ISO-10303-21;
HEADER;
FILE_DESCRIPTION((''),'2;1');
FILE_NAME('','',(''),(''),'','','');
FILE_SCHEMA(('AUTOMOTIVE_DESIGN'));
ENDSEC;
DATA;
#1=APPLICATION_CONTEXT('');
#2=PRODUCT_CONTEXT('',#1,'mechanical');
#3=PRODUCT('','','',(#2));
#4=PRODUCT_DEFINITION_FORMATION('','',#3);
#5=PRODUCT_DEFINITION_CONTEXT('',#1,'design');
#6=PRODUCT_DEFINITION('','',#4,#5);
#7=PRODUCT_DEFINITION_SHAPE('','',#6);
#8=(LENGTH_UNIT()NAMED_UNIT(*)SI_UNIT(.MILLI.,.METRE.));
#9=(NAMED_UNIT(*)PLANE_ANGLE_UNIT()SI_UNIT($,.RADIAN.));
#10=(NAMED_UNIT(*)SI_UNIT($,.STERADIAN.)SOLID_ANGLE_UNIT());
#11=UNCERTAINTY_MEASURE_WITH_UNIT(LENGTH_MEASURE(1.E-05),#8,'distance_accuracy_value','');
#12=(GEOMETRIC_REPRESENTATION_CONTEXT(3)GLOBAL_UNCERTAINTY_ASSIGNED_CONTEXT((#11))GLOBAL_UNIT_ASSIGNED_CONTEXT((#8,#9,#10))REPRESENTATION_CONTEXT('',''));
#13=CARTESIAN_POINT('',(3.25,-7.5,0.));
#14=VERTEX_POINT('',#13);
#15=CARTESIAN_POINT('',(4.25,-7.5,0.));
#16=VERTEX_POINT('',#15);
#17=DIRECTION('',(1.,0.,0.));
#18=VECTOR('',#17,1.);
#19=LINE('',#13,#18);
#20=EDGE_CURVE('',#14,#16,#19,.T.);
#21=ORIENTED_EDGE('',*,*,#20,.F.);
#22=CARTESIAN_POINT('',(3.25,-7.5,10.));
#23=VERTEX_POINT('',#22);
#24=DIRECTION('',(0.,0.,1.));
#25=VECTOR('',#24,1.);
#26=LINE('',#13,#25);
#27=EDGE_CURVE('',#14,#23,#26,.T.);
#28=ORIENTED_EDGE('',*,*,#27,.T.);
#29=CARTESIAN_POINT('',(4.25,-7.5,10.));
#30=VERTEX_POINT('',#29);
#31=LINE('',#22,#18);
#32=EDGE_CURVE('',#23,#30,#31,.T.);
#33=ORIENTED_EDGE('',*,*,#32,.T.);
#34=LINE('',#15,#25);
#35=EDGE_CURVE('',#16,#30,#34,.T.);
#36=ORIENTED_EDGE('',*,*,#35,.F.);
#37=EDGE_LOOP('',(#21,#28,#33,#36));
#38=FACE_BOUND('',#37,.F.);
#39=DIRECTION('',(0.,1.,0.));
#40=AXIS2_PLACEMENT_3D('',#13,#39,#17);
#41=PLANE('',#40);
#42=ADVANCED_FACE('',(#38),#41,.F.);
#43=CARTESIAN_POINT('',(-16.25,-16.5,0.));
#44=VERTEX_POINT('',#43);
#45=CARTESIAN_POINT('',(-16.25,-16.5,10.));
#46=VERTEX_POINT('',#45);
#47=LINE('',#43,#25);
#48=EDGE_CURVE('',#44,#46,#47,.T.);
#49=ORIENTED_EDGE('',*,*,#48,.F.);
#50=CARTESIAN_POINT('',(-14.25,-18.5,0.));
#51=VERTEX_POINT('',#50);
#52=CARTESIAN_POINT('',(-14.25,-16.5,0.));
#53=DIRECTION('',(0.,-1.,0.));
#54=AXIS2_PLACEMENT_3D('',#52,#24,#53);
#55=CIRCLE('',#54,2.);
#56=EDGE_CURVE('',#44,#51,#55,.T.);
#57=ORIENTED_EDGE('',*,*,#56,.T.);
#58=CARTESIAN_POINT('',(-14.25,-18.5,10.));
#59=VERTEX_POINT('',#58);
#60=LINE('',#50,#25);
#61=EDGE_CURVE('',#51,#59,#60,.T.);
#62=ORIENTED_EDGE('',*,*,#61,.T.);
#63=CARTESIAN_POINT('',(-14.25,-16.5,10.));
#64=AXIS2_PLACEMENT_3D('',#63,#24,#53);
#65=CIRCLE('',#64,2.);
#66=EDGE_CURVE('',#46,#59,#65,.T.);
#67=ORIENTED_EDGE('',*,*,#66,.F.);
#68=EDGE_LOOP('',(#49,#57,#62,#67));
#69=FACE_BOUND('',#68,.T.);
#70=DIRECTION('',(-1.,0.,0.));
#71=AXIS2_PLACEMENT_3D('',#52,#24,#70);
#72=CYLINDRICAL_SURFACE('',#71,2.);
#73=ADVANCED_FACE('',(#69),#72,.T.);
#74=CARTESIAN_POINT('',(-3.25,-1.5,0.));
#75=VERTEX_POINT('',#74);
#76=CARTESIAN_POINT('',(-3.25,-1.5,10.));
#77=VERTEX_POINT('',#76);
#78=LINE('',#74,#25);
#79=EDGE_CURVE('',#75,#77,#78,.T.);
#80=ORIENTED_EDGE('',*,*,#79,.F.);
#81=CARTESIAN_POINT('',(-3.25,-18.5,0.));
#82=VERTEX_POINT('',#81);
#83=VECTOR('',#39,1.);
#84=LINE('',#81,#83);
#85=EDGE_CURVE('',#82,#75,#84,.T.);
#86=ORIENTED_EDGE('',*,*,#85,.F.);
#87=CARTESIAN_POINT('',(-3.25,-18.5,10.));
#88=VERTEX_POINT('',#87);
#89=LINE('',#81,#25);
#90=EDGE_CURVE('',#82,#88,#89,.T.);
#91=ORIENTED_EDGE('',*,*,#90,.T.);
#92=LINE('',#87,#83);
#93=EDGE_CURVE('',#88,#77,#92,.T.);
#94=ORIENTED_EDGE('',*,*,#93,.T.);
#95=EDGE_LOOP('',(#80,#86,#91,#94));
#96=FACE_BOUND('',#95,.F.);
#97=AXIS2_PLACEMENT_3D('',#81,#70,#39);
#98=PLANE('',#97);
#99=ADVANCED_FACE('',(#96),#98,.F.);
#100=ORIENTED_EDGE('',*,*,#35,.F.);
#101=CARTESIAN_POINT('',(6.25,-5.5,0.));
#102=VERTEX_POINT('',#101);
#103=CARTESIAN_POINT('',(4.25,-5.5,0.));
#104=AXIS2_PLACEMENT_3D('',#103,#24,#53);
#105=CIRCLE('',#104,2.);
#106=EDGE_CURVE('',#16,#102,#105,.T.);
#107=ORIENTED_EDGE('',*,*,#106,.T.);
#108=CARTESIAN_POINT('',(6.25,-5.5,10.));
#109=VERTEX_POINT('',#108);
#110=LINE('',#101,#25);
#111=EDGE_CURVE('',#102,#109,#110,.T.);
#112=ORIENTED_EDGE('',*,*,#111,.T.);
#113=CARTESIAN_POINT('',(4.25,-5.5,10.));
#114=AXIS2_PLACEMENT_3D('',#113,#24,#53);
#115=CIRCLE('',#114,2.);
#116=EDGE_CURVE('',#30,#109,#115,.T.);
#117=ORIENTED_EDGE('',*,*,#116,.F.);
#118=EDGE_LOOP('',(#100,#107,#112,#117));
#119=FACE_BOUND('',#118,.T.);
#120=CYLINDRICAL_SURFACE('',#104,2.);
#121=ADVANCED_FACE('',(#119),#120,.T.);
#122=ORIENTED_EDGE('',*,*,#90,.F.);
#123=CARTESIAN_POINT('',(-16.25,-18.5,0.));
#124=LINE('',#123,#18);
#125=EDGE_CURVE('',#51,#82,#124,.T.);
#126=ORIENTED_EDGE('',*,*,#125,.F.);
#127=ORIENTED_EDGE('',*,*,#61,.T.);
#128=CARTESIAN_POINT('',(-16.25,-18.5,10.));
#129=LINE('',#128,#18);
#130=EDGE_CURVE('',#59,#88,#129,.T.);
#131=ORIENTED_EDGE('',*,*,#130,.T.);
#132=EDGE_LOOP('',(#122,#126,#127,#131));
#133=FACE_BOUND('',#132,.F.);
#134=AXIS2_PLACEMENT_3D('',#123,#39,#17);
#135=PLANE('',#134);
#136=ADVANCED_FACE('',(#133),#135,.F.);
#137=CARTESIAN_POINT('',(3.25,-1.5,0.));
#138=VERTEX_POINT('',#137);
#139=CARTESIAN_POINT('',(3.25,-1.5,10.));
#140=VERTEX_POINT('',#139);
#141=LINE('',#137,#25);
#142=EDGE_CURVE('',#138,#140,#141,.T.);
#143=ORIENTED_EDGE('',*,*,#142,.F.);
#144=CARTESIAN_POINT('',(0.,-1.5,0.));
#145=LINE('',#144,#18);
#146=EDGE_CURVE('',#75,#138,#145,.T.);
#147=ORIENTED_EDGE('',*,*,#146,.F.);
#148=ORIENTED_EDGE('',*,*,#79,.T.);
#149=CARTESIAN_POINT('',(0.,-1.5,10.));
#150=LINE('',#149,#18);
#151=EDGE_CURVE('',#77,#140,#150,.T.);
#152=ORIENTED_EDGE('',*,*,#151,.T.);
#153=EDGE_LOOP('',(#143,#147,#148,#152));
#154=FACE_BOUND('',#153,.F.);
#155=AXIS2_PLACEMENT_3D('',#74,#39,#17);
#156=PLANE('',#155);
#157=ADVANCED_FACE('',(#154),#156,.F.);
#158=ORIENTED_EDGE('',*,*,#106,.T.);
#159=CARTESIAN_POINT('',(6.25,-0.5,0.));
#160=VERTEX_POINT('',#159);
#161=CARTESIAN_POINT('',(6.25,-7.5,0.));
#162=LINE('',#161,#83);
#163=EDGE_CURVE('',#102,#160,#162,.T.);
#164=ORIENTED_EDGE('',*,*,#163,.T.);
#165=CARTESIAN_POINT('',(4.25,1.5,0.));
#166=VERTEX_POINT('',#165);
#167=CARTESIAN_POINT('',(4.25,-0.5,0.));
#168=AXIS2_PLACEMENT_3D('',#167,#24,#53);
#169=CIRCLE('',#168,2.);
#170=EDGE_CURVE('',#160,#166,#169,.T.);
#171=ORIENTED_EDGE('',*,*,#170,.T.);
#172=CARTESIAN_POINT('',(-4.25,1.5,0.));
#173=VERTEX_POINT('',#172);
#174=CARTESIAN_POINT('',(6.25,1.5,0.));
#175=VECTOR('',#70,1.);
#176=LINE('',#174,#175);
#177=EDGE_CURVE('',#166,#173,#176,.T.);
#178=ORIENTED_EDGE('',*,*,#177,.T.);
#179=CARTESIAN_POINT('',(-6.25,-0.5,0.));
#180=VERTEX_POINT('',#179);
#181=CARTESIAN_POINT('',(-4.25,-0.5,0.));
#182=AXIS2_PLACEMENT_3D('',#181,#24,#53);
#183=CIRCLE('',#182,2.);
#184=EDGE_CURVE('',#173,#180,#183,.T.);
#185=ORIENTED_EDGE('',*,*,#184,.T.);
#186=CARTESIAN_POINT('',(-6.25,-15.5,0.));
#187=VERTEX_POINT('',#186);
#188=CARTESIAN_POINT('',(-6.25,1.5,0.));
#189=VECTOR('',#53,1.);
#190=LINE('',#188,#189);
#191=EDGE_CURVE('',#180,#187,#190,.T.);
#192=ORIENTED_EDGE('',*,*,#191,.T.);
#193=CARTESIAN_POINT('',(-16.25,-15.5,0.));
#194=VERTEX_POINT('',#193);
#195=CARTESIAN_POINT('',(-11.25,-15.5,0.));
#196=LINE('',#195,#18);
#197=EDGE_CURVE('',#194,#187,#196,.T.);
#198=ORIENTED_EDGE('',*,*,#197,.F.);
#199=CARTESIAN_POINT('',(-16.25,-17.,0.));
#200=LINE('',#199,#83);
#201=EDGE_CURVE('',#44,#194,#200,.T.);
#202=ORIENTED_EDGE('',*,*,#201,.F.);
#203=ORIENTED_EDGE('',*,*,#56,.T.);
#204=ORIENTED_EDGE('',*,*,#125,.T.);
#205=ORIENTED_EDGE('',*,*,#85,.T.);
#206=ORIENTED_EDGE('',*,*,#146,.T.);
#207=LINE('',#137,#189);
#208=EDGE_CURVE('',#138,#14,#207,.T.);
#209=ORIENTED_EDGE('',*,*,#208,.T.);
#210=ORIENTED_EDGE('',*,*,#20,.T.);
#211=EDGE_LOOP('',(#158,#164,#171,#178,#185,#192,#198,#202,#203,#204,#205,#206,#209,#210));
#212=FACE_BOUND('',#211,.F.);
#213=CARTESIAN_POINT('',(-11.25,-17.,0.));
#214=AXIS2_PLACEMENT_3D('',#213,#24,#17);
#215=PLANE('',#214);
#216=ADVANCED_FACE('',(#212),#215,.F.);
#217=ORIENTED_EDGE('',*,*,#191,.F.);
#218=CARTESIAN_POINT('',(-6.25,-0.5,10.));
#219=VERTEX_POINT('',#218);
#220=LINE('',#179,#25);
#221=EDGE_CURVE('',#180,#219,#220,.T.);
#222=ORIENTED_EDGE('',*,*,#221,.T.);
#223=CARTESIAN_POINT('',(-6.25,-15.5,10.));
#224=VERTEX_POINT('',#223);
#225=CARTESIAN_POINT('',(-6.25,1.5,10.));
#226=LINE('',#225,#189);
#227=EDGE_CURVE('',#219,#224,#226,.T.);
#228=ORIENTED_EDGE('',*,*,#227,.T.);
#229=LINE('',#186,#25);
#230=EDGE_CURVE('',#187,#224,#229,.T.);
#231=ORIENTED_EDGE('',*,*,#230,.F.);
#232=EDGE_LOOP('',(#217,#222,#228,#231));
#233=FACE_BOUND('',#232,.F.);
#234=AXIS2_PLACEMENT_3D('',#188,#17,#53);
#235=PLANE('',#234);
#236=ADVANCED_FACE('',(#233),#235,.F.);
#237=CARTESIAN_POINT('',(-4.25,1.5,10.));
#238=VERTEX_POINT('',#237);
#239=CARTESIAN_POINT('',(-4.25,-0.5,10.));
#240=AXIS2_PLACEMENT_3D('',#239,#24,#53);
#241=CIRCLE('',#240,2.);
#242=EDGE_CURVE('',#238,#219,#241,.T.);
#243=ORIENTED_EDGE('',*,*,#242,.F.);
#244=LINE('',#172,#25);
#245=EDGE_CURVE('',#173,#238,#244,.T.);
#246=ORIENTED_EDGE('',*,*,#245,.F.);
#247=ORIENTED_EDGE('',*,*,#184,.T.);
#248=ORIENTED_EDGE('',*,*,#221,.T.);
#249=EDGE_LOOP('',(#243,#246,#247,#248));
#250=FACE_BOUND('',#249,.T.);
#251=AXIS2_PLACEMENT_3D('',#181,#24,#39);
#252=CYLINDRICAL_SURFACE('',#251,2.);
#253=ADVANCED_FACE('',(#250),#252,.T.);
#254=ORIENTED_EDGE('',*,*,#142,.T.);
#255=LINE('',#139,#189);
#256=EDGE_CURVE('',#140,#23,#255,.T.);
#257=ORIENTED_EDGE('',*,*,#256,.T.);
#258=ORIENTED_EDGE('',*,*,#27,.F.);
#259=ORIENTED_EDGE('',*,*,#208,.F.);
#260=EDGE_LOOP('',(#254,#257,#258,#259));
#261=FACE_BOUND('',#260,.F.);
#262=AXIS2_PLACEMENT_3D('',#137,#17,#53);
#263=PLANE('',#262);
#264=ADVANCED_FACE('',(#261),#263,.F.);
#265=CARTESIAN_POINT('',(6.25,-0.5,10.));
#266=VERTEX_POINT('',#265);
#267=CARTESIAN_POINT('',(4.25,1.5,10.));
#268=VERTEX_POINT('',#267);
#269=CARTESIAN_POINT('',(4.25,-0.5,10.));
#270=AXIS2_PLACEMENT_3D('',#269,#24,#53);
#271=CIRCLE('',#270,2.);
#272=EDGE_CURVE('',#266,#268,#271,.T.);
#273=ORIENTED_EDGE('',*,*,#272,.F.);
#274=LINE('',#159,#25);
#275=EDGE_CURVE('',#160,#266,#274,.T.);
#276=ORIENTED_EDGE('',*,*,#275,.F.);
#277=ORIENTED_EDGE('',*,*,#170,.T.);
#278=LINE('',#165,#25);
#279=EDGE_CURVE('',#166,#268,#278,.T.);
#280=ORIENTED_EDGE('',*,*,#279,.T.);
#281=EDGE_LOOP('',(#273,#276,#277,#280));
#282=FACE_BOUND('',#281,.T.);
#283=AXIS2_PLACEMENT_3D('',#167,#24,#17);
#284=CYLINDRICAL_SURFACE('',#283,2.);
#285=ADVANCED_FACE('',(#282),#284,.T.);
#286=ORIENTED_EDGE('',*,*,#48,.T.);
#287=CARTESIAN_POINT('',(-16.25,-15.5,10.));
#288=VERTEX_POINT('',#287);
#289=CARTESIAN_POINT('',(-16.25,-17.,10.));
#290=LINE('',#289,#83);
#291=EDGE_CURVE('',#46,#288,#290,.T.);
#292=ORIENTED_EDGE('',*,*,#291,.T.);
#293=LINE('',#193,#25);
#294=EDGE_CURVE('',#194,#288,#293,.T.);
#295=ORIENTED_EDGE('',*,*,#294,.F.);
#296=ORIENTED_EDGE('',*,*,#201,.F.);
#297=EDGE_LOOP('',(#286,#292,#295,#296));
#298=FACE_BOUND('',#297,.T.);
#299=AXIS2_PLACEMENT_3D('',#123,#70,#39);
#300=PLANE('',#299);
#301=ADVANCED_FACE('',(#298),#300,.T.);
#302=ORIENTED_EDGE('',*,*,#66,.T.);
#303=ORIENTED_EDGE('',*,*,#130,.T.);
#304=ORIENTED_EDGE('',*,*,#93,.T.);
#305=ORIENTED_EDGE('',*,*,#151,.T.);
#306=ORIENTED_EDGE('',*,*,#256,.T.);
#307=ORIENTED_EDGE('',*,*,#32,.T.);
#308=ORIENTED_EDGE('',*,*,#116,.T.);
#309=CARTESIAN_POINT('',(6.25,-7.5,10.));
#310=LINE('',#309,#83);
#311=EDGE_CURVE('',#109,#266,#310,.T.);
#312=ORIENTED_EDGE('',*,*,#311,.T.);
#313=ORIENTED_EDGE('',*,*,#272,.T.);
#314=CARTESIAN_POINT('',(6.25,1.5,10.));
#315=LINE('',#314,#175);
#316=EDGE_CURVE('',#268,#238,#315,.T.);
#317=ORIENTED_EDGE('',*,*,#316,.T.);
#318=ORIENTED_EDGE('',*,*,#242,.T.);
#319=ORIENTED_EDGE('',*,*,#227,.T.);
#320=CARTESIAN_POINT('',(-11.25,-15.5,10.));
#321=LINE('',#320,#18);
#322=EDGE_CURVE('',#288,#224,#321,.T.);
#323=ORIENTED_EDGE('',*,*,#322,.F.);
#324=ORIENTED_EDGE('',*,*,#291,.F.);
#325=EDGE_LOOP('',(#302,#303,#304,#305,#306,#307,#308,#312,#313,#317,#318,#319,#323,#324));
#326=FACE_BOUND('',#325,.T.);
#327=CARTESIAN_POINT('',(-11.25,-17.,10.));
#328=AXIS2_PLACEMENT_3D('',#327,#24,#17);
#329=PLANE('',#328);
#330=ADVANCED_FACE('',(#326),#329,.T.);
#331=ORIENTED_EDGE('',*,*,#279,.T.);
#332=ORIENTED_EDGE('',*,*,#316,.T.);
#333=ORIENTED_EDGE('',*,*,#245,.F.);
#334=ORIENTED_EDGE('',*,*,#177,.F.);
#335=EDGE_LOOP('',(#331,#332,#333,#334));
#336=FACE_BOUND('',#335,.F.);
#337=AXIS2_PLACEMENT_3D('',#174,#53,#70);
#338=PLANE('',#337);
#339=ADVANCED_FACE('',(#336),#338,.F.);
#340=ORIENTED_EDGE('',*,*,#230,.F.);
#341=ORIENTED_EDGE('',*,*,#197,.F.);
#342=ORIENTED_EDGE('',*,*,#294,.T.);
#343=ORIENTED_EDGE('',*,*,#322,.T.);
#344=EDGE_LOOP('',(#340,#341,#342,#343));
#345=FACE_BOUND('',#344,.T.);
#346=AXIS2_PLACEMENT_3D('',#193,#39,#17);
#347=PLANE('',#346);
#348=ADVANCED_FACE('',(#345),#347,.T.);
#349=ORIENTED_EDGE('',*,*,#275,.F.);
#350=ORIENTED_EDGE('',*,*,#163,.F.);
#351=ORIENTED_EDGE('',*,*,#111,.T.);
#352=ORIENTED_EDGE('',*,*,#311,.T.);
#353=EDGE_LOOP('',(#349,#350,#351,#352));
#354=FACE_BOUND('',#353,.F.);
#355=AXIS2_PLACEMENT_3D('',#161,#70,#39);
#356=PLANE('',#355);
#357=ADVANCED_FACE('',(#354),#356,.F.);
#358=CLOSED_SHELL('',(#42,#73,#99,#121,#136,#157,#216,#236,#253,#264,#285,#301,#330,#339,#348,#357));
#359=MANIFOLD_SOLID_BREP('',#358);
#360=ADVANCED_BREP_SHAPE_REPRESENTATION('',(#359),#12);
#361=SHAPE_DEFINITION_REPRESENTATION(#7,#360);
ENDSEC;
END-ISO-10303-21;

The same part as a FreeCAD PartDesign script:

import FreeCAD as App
import Part
import Sketcher
from FreeCAD import Vector
Q = App.Units.Quantity


def edges_at(feature, points):
    """Names of the edges that pass closest to the given points."""
    edges = feature.Shape.Edges
    near = lambda p: min(range(len(edges)), key=lambda i: edges[i].distToShape(Part.Vertex(*p))[0])
    return sorted({f"Edge{near(p) + 1}" for p in points})

doc = App.newDocument("Part")
params = doc.addObject("Spreadsheet::Sheet", "Params")
for row, (alias, value) in enumerate([
    ("sketch1_width", "13 mm"),
    ("sketch1_width2", "3 mm"),
    ("sketch1_width3", "10 mm"),
    ("sketch1_height", "17 mm"),
    ("sketch1_height2", "6 mm"),
    ("pad1_length", "10 mm"),
    ("fillet_radius", "2 mm"),
], start=1):
    params.set(f"A{row}", alias)
    params.set(f"B{row}", "=" + value)
    params.setAlias(f"B{row}", alias)

body = doc.addObject("PartDesign::Body", "Body")

sketch1 = doc.addObject("Sketcher::SketchObject", "Sketch")
body.addObject(sketch1)
sketch1.AttachmentSupport = (doc.XY_Plane, [""])
sketch1.MapMode = "FlatFace"
sketch1.addGeometry([
    Part.LineSegment(Vector(-16.2, -15.5, 0), Vector(-16.2, -18.5, 0)),
    Part.LineSegment(Vector(-16.2, -18.5, 0), Vector(-3.2, -18.5, 0)),
    Part.LineSegment(Vector(-3.2, -18.5, 0), Vector(-3.2, -1.5, 0)),
    Part.LineSegment(Vector(-3.2, -1.5, 0), Vector(3.2, -1.5, 0)),
    Part.LineSegment(Vector(3.2, -1.5, 0), Vector(3.2, -7.5, 0)),
    Part.LineSegment(Vector(3.2, -7.5, 0), Vector(6.2, -7.5, 0)),
    Part.LineSegment(Vector(6.2, -7.5, 0), Vector(6.2, 1.5, 0)),
    Part.LineSegment(Vector(6.2, 1.5, 0), Vector(-6.2, 1.5, 0)),
    Part.LineSegment(Vector(-6.2, 1.5, 0), Vector(-6.2, -15.5, 0)),
    Part.LineSegment(Vector(-6.2, -15.5, 0), Vector(-16.2, -15.5, 0)),
], False)
sketch1.addConstraint([
    Sketcher.Constraint("Coincident", 0, 2, 1, 1),
    Sketcher.Constraint("Coincident", 1, 2, 2, 1),
    Sketcher.Constraint("Coincident", 2, 2, 3, 1),
    Sketcher.Constraint("Coincident", 3, 2, 4, 1),
    Sketcher.Constraint("Coincident", 4, 2, 5, 1),
    Sketcher.Constraint("Coincident", 5, 2, 6, 1),
    Sketcher.Constraint("Coincident", 6, 2, 7, 1),
    Sketcher.Constraint("Coincident", 7, 2, 8, 1),
    Sketcher.Constraint("Coincident", 8, 2, 9, 1),
    Sketcher.Constraint("Coincident", 9, 2, 0, 1),
    Sketcher.Constraint("Vertical", 0),
    Sketcher.Constraint("Horizontal", 1),
    Sketcher.Constraint("Vertical", 2),
    Sketcher.Constraint("Horizontal", 3),
    Sketcher.Constraint("Vertical", 4),
    Sketcher.Constraint("Horizontal", 5),
    Sketcher.Constraint("Vertical", 6),
    Sketcher.Constraint("Horizontal", 7),
    Sketcher.Constraint("Vertical", 8),
    Sketcher.Constraint("Horizontal", 9),
    Sketcher.Constraint("Equal", 5, 0),
    Sketcher.Constraint("Equal", 2, 8),
    Sketcher.Constraint("DistanceX", 1, 1, 1, 2, Q("13 mm")),
    Sketcher.Constraint("DistanceX", 5, 1, 5, 2, Q("3 mm")),
    Sketcher.Constraint("DistanceX", 9, 2, 9, 1, Q("10 mm")),
    Sketcher.Constraint("DistanceY", 2, 1, 2, 2, Q("17 mm")),
    Sketcher.Constraint("DistanceY", 4, 2, 4, 1, Q("6 mm")),
    Sketcher.Constraint("DistanceX", 3, 1, 3, 2, Q("6.5 mm")),
    Sketcher.Constraint("DistanceY", 0, 2, -1, 1, Q("18.5 mm")),
    Sketcher.Constraint("DistanceX", 0, 2, -1, 1, Q("16.25 mm")),
])
sketch1.setExpression("Constraints[22]", "Params.sketch1_width")
sketch1.setExpression("Constraints[23]", "Params.sketch1_width2")
sketch1.setExpression("Constraints[24]", "Params.sketch1_width3")
sketch1.setExpression("Constraints[25]", "Params.sketch1_height")
sketch1.setExpression("Constraints[26]", "Params.sketch1_height2")
pad1 = doc.addObject("PartDesign::Pad", "Pad")
body.addObject(pad1)
pad1.Profile = sketch1
pad1.setExpression("Length", "Params.pad1_length")
doc.recompute()

fillet = doc.addObject("PartDesign::Fillet", "Fillet")
body.addObject(fillet)
fillet.Base = (pad1, edges_at(pad1, [
    (-6.25, 1.5, 5),
    (6.25, 1.5, 5),
    (6.25, -7.5, 5),
    (-16.25, -18.5, 5),
]))
fillet.setExpression("Radius", "Params.fillet_radius")

doc.recompute()
